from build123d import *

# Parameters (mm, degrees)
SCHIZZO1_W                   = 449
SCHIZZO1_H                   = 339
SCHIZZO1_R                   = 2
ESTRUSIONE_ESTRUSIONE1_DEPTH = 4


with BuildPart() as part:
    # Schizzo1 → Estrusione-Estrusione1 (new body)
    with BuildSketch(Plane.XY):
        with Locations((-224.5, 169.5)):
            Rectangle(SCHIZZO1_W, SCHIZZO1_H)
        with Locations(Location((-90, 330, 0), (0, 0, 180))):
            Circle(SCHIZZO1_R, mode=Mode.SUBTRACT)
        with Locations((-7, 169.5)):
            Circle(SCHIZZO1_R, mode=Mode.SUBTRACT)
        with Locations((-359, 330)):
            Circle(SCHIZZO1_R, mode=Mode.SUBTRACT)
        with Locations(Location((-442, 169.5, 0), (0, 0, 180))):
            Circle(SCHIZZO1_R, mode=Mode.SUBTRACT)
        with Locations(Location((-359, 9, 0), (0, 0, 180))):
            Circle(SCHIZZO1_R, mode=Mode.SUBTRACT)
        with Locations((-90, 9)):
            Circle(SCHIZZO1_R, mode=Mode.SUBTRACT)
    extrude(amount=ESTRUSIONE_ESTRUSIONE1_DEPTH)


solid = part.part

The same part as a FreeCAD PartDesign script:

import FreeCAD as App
import Part
import Sketcher

V = App.Vector


def add_polygon(sketch, points):
    """Adds a closed chain of lines whose ends are joined by coincident constraints."""
    first, n = sketch.GeometryCount, len(points)
    for a, b in zip(points, points[1:] + points[:1]):
        sketch.addGeometry(Part.LineSegment(App.Vector(*a, 0), App.Vector(*b, 0)), False)
    for i in range(n):
        sketch.addConstraint(Sketcher.Constraint("Coincident", first + i, 2, first + (i + 1) % n, 1))

doc = App.newDocument("Part")
params = doc.addObject("Spreadsheet::Sheet", "Params")
for row, (alias, value) in enumerate([
    ("sketch1_diameter", "4 mm"),
    ("sketch1_width", "449 mm"),
    ("sketch1_height", "339 mm"),
    ("pad1_length", "4 mm"),
], start=1):
    params.set(f"A{row}", alias)
    params.set(f"B{row}", "=" + value)
    params.setAlias(f"B{row}", alias)

body = doc.addObject("PartDesign::Body", "Body")

# Sketch on XY plane
sketch1 = body.newObject("Sketcher::SketchObject", "Sketch")
sketch1.AttachmentSupport = (doc.getObject("XY_Plane"), [""])
sketch1.MapMode = "FlatFace"
add_polygon(sketch1, [(-449, 339), (-449, 0), (0, 0), (0, 339)])  # lines 0-3
sketch1.addGeometry(Part.Circle(V(-359, 9, 0), V(0, 0, 1), 2), False)  # 4
sketch1.addGeometry(Part.Circle(V(-90, 9, 0), V(0, 0, 1), 2), False)  # 5
sketch1.addGeometry(Part.Circle(V(-442, 169.5, 0), V(0, 0, 1), 2), False)  # 6
sketch1.addGeometry(Part.Circle(V(-359, 330, 0), V(0, 0, 1), 2), False)  # 7
sketch1.addGeometry(Part.Circle(V(-7, 169.5, 0), V(0, 0, 1), 2), False)  # 8
sketch1.addGeometry(Part.Circle(V(-90, 330, 0), V(0, 0, 1), 2), False)  # 9
sketch1.addConstraint([
    Sketcher.Constraint("Vertical", 0),
    Sketcher.Constraint("Horizontal", 1),
    Sketcher.Constraint("Vertical", 2),
    Sketcher.Constraint("Horizontal", 3),
    Sketcher.Constraint("Coincident", 1, 2, -1, 1),
    Sketcher.Constraint("Equal", 4, 5),
    Sketcher.Constraint("Equal", 5, 6),
    Sketcher.Constraint("Equal", 6, 7),
    Sketcher.Constraint("Equal", 7, 8),
    Sketcher.Constraint("Equal", 8, 9),
    Sketcher.Constraint("Horizontal", 4, 3, 5, 3),
    Sketcher.Constraint("Horizontal", 6, 3, 8, 3),
    Sketcher.Constraint("Horizontal", 7, 3, 9, 3),
    Sketcher.Constraint("Vertical", 4, 3, 7, 3),
    Sketcher.Constraint("Vertical", 5, 3, 9, 3),
    Sketcher.Constraint("Diameter", 4, 4.0),
    Sketcher.Constraint("DistanceX", 1, 1, 1, 2, 449.0),
    Sketcher.Constraint("DistanceY", 0, 2, 0, 1, 339.0),
    Sketcher.Constraint("DistanceX", 4, 3, -1, 1, 359.0),
    Sketcher.Constraint("DistanceY", -1, 1, 4, 3, 9.0),
    Sketcher.Constraint("DistanceX", 5, 3, -1, 1, 90.0),
    Sketcher.Constraint("DistanceX", 6, 3, -1, 1, 442.0),
    Sketcher.Constraint("DistanceY", -1, 1, 7, 3, 330.0),
    Sketcher.Constraint("DistanceX", 8, 3, -1, 1, 7.0),
    Sketcher.Constraint("DistanceY", -1, 1, 6, 3, 169.5),
])
sketch1.setExpression("Constraints[19]", "Params.sketch1_diameter")
sketch1.setExpression("Constraints[20]", "Params.sketch1_width")
sketch1.setExpression("Constraints[21]", "Params.sketch1_height")
pad1 = body.newObject("PartDesign::Pad", "Pad")
pad1.Profile = sketch1
pad1.setExpression("Length", "Params.pad1_length")

doc.recompute()
